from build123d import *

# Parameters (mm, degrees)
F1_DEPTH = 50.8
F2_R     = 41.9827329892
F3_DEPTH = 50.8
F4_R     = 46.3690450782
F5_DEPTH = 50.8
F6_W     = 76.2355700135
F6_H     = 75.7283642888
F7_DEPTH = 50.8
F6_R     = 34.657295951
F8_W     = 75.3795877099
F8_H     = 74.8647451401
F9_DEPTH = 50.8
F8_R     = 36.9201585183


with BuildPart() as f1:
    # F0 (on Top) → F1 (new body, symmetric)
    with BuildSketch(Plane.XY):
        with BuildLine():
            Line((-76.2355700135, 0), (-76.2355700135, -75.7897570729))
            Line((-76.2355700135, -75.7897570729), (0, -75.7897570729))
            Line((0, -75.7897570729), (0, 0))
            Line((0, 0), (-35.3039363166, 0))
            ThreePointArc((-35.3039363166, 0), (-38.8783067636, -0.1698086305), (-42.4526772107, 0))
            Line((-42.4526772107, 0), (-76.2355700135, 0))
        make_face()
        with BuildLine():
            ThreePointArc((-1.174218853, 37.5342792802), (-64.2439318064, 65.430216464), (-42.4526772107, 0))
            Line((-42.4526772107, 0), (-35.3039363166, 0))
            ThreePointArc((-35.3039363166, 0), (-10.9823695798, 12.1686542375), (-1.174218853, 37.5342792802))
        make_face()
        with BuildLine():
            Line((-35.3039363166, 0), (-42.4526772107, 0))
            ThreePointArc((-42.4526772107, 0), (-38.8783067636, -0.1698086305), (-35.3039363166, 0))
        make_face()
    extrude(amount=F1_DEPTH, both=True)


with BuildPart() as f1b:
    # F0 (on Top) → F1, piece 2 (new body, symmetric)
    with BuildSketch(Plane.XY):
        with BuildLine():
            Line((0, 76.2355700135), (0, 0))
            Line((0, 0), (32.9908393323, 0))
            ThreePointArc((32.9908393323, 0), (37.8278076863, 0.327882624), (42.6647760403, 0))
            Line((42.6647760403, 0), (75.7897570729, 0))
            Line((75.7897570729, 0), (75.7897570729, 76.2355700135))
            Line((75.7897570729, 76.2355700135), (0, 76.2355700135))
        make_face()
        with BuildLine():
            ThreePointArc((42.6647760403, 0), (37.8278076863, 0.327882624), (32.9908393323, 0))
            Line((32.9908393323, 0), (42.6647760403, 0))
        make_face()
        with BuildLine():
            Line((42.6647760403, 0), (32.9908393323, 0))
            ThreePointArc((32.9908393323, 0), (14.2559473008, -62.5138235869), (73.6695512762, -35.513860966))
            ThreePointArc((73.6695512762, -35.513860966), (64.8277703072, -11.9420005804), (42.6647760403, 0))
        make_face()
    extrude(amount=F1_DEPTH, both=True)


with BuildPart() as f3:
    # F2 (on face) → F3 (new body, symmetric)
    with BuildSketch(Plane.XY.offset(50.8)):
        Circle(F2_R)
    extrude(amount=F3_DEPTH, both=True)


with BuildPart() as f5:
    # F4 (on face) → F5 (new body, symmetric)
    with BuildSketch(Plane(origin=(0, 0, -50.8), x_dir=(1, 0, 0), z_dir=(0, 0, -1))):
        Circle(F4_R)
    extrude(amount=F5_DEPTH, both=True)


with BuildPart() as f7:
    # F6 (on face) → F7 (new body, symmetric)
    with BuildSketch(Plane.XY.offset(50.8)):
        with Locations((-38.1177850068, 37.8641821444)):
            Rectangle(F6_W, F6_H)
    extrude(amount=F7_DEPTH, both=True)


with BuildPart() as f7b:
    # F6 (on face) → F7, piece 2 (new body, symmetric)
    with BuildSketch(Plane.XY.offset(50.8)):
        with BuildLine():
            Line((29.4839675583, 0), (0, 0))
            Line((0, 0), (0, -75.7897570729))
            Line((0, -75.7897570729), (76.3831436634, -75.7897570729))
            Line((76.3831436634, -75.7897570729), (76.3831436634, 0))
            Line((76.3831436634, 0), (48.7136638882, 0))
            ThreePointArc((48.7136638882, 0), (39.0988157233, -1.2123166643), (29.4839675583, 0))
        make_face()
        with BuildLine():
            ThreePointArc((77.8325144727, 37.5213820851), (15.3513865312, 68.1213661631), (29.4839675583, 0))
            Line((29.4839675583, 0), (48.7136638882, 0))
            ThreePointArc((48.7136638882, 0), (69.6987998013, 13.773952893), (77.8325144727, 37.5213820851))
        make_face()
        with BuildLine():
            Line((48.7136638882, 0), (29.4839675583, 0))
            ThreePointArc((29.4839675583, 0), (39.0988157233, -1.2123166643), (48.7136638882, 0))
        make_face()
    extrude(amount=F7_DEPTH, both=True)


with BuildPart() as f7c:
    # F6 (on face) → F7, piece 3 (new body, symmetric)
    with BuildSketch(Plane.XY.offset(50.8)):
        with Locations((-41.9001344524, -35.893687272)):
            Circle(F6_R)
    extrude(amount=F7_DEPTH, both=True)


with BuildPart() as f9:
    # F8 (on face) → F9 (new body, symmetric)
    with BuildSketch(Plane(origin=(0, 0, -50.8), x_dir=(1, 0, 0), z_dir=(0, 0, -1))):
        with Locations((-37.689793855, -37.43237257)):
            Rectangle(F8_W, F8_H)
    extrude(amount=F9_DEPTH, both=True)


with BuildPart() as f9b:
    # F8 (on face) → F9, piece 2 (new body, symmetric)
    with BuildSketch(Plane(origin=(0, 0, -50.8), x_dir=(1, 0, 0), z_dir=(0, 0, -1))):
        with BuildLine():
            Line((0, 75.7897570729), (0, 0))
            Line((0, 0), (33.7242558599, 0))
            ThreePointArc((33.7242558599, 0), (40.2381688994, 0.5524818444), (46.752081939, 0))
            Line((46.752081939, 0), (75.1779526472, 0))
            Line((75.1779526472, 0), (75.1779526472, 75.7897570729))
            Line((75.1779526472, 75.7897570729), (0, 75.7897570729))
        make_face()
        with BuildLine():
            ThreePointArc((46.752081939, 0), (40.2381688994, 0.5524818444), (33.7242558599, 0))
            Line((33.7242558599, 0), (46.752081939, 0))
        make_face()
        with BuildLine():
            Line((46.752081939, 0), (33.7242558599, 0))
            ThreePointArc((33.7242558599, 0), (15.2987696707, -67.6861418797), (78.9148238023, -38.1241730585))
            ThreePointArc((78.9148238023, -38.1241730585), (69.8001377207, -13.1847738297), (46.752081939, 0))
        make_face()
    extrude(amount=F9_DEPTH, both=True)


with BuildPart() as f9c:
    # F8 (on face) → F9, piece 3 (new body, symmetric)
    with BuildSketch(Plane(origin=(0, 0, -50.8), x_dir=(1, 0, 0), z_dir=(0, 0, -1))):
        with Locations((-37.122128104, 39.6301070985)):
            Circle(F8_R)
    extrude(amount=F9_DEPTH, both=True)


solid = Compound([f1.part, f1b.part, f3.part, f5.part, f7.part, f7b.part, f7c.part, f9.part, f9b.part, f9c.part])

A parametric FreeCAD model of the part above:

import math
import FreeCAD as App
import Part
import Sketcher

V = App.Vector
Q = App.Units.Quantity

doc = App.newDocument("Part")
params = doc.addObject("Spreadsheet::Sheet", "Params")
for row, (alias, value) in enumerate([
    ("pad1_length", "4 in"),
    ("pad2_length", "4 in"),
    ("pad3_length", "4 in"),
    ("pad4_length", "4 in"),
    ("pad5_length", "4 in"),
    ("pad6_length", "4 in"),
    ("pad7_length", "4 in"),
    ("pad8_length", "4 in"),
    ("pad9_length", "4 in"),
    ("pad10_length", "4 in"),
], start=1):
    params.set(f"A{row}", alias)
    params.set(f"B{row}", "=" + value)
    params.setAlias(f"B{row}", alias)

body = doc.addObject("PartDesign::Body", "Body")

sketch1 = body.newObject("Sketcher::SketchObject", "Sketch")
sketch1.AttachmentSupport = (doc.getObject("XY_Plane"), [""])
sketch1.MapMode = "FlatFace"
sketch1.addGeometry(Part.LineSegment(V(-76, 0, 0), V(-76, -76, 0)), False)
sketch1.addGeometry(Part.LineSegment(V(-76, -76, 0), V(0, -76, 0)), False)
sketch1.addGeometry(Part.LineSegment(V(0, -76, 0), V(0, 0, 0)), False)
sketch1.addGeometry(Part.LineSegment(V(0, 0, 0), V(-35, 0, 0)), False)
sketch1.addGeometry(Part.ArcOfCircle(Part.Circle(V(-39, 38, 0), V(0, 0, 1), 38), math.radians(-85), math.radians(0)), False)
sketch1.addGeometry(Part.ArcOfCircle(Part.Circle(V(-39, 38, 0), V(0, 0, 1), 38), math.radians(0), math.radians(265)), False)
sketch1.addGeometry(Part.LineSegment(V(-42, 0, 0), V(-76, 0, 0)), False)
sketch1.addConstraint(Sketcher.Constraint("Coincident", 0, 2, 1, 1))
sketch1.addConstraint(Sketcher.Constraint("Coincident", 1, 2, 2, 1))
sketch1.addConstraint(Sketcher.Constraint("Coincident", 2, 2, 3, 1))
sketch1.addConstraint(Sketcher.Constraint("Coincident", 3, 2, 4, 1))
sketch1.addConstraint(Sketcher.Constraint("Tangent", 4, 2, 5, 1))
sketch1.addConstraint(Sketcher.Constraint("Coincident", 5, 2, 6, 1))
sketch1.addConstraint(Sketcher.Constraint("Coincident", 6, 2, 0, 1))
sketch1.addConstraint(Sketcher.Constraint("Vertical", 0))
sketch1.addConstraint(Sketcher.Constraint("Horizontal", 1))
sketch1.addConstraint(Sketcher.Constraint("Vertical", 2))
sketch1.addConstraint(Sketcher.Constraint("Horizontal", 3))
sketch1.addConstraint(Sketcher.Constraint("Horizontal", 6))
sketch1.addConstraint(Sketcher.Constraint("Coincident", 2, 2, -1, 1))
sketch1.addConstraint(Sketcher.Constraint("Equal", 4, 5))
sketch1.addConstraint(Sketcher.Constraint("PointOnObject", 5, 2, -1))
sketch1.addConstraint(Sketcher.Constraint("Horizontal", 5, 3, 4, 2))
sketch1.addConstraint(Sketcher.Constraint("Radius", 4, Q("37.704088 mm")))
sketch1.addConstraint(Sketcher.Constraint("DistanceX", 1, 1, 1, 2, Q("76.23557 mm")))
sketch1.addConstraint(Sketcher.Constraint("DistanceX", 3, 2, 3, 1, Q("35.303936 mm")))
sketch1.addConstraint(Sketcher.Constraint("DistanceX", 6, 2, 6, 1, Q("33.782893 mm")))
sketch1.addConstraint(Sketcher.Constraint("DistanceY", 0, 2, 0, 1, Q("75.789757 mm")))
pad1 = body.newObject("PartDesign::Pad", "Pad")
pad1.Profile = sketch1
pad1.setExpression("Length", "Params.pad1_length")
pad1.Midplane = True
body2 = doc.addObject("PartDesign::Body", "Body001")

sketch2 = body2.newObject("Sketcher::SketchObject", "Sketch001")
sketch2.AttachmentSupport = (doc.getObject("XY_Plane001"), [""])
sketch2.MapMode = "FlatFace"
sketch2.addGeometry(Part.LineSegment(V(0, 76, 0), V(0, 0, 0)), False)
sketch2.addGeometry(Part.LineSegment(V(0, 0, 0), V(33, 0, 0)), False)
sketch2.addGeometry(Part.ArcOfCircle(Part.Circle(V(38, -36, 0), V(0, 0, 1), 36), math.radians(98), math.radians(442)), False)
sketch2.addGeometry(Part.LineSegment(V(43, 0, 0), V(76, 0, 0)), False)
sketch2.addGeometry(Part.LineSegment(V(76, 0, 0), V(76, 76, 0)), False)
sketch2.addGeometry(Part.LineSegment(V(76, 76, 0), V(0, 76, 0)), False)
sketch2.addConstraint(Sketcher.Constraint("Coincident", 0, 2, 1, 1))
sketch2.addConstraint(Sketcher.Constraint("Coincident", 1, 2, 2, 1))
sketch2.addConstraint(Sketcher.Constraint("Coincident", 2, 2, 3, 1))
sketch2.addConstraint(Sketcher.Constraint("Coincident", 3, 2, 4, 1))
sketch2.addConstraint(Sketcher.Constraint("Coincident", 4, 2, 5, 1))
sketch2.addConstraint(Sketcher.Constraint("Coincident", 5, 2, 0, 1))
sketch2.addConstraint(Sketcher.Constraint("Vertical", 0))
sketch2.addConstraint(Sketcher.Constraint("Horizontal", 1))
sketch2.addConstraint(Sketcher.Constraint("Horizontal", 3))
sketch2.addConstraint(Sketcher.Constraint("Vertical", 4))
sketch2.addConstraint(Sketcher.Constraint("Horizontal", 5))
sketch2.addConstraint(Sketcher.Constraint("Coincident", 0, 2, -1, 1))
sketch2.addConstraint(Sketcher.Constraint("PointOnObject", 2, 2, -1))
sketch2.addConstraint(Sketcher.Constraint("Radius", 2, Q("35.841744 mm")))
sketch2.addConstraint(Sketcher.Constraint("DistanceX", 1, 1, 1, 2, Q("32.990839 mm")))
sketch2.addConstraint(Sketcher.Constraint("DistanceX", 3, 1, 3, 2, Q("33.124981 mm")))
sketch2.addConstraint(Sketcher.Constraint("DistanceY", 0, 2, 0, 1, Q("76.23557 mm")))
sketch2.addConstraint(Sketcher.Constraint("DistanceX", 5, 2, 5, 1, Q("75.789757 mm")))
pad2 = body2.newObject("PartDesign::Pad", "Pad001")
pad2.Profile = sketch2
pad2.setExpression("Length", "Params.pad2_length")
pad2.Midplane = True
body3 = doc.addObject("PartDesign::Body", "Body002")

sketch3 = body3.newObject("Sketcher::SketchObject", "Sketch002")
sketch3.AttachmentSupport = (doc.getObject("XY_Plane002"), [""])
sketch3.MapMode = "FlatFace"
sketch3.AttachmentOffset = App.Placement(V(0, 0, 2 * 25.4), App.Rotation())
sketch3.addGeometry(Part.Circle(V(0, 0, 0), V(0, 0, 1), 42), False)
sketch3.addConstraint(Sketcher.Constraint("Coincident", 0, 3, -1, 1))
sketch3.addConstraint(Sketcher.Constraint("Diameter", 0, Q("83.965466 mm")))
pad3 = body3.newObject("PartDesign::Pad", "Pad002")
pad3.Profile = sketch3
pad3.setExpression("Length", "Params.pad3_length")
pad3.Midplane = True
body4 = doc.addObject("PartDesign::Body", "Body003")

sketch4 = body4.newObject("Sketcher::SketchObject", "Sketch003")
sketch4.AttachmentSupport = (doc.getObject("XY_Plane003"), [""])
sketch4.MapMode = "FlatFace"
sketch4.AttachmentOffset = App.Placement(V(0, 0, -2 * 25.4), App.Rotation())
sketch4.addGeometry(Part.Circle(V(0, 0, 0), V(0, 0, 1), 46), False)
sketch4.addConstraint(Sketcher.Constraint("Coincident", 0, 3, -1, 1))
sketch4.addConstraint(Sketcher.Constraint("Diameter", 0, Q("92.73809 mm")))
pad4 = body4.newObject("PartDesign::Pad", "Pad003")
pad4.Profile = sketch4
pad4.setExpression("Length", "Params.pad4_length")
pad4.Midplane = True
body5 = doc.addObject("PartDesign::Body", "Body004")

sketch5 = body5.newObject("Sketcher::SketchObject", "Sketch004")
sketch5.AttachmentSupport = (doc.getObject("XY_Plane004"), [""])
sketch5.MapMode = "FlatFace"
sketch5.AttachmentOffset = App.Placement(V(0, 0, 2 * 25.4), App.Rotation())
sketch5.addGeometry(Part.LineSegment(V(-76, 76, 0), V(-76, 0, 0)), False)
sketch5.addGeometry(Part.LineSegment(V(-76, 0, 0), V(0, 0, 0)), False)
sketch5.addGeometry(Part.LineSegment(V(0, 0, 0), V(0, 76, 0)), False)
sketch5.addGeometry(Part.LineSegment(V(0, 76, 0), V(-76, 76, 0)), False)
sketch5.addConstraint(Sketcher.Constraint("Coincident", 0, 2, 1, 1))
sketch5.addConstraint(Sketcher.Constraint("Coincident", 1, 2, 2, 1))
sketch5.addConstraint(Sketcher.Constraint("Coincident", 2, 2, 3, 1))
sketch5.addConstraint(Sketcher.Constraint("Coincident", 3, 2, 0, 1))
sketch5.addConstraint(Sketcher.Constraint("Vertical", 0))
sketch5.addConstraint(Sketcher.Constraint("Horizontal", 1))
sketch5.addConstraint(Sketcher.Constraint("Vertical", 2))
sketch5.addConstraint(Sketcher.Constraint("Horizontal", 3))
sketch5.addConstraint(Sketcher.Constraint("Coincident", 1, 2, -1, 1))
sketch5.addConstraint(Sketcher.Constraint("DistanceX", 1, 1, 1, 2, Q("76.23557 mm")))
sketch5.addConstraint(Sketcher.Constraint("DistanceY", 0, 2, 0, 1, Q("75.728364 mm")))
pad5 = body5.newObject("PartDesign::Pad", "Pad004")
pad5.Profile = sketch5
pad5.setExpression("Length", "Params.pad5_length")
pad5.Midplane = True
body6 = doc.addObject("PartDesign::Body", "Body005")

sketch6 = body6.newObject("Sketcher::SketchObject", "Sketch005")
sketch6.AttachmentSupport = (doc.getObject("XY_Plane005"), [""])
sketch6.MapMode = "FlatFace"
sketch6.AttachmentOffset = App.Placement(V(0, 0, 2 * 25.4), App.Rotation())
sketch6.addGeometry(Part.LineSegment(V(29, 0, 0), V(0, 0, 0)), False)
sketch6.addGeometry(Part.LineSegment(V(0, 0, 0), V(0, -76, 0)), False)
sketch6.addGeometry(Part.LineSegment(V(0, -76, 0), V(76, -76, 0)), False)
sketch6.addGeometry(Part.LineSegment(V(76, -76, 0), V(76, 0, 0)), False)
sketch6.addGeometry(Part.LineSegment(V(76, 0, 0), V(49, 0, 0)), False)
sketch6.addGeometry(Part.ArcOfCircle(Part.Circle(V(39, 38, 0), V(0, 0, 1), 39), math.radians(-76), math.radians(0)), False)
sketch6.addGeometry(Part.ArcOfCircle(Part.Circle(V(39, 38, 0), V(0, 0, 1), 39), math.radians(0), math.radians(256)), False)
sketch6.addConstraint(Sketcher.Constraint("Coincident", 0, 2, 1, 1))
sketch6.addConstraint(Sketcher.Constraint("Coincident", 1, 2, 2, 1))
sketch6.addConstraint(Sketcher.Constraint("Coincident", 2, 2, 3, 1))
sketch6.addConstraint(Sketcher.Constraint("Coincident", 3, 2, 4, 1))
sketch6.addConstraint(Sketcher.Constraint("Coincident", 4, 2, 5, 1))
sketch6.addConstraint(Sketcher.Constraint("Tangent", 5, 2, 6, 1))
sketch6.addConstraint(Sketcher.Constraint("Coincident", 6, 2, 0, 1))
sketch6.addConstraint(Sketcher.Constraint("Horizontal", 0))
sketch6.addConstraint(Sketcher.Constraint("Vertical", 1))
sketch6.addConstraint(Sketcher.Constraint("Horizontal", 2))
sketch6.addConstraint(Sketcher.Constraint("Vertical", 3))
sketch6.addConstraint(Sketcher.Constraint("Horizontal", 4))
sketch6.addConstraint(Sketcher.Constraint("Coincident", 0, 2, -1, 1))
sketch6.addConstraint(Sketcher.Constraint("Equal", 5, 6))
sketch6.addConstraint(Sketcher.Constraint("PointOnObject", 3, 2, -1))
sketch6.addConstraint(Sketcher.Constraint("Horizontal", 6, 3, 5, 2))
sketch6.addConstraint(Sketcher.Constraint("Radius", 5, Q("38.733699 mm")))
sketch6.addConstraint(Sketcher.Constraint("DistanceX", 4, 2, 4, 1, Q("27.66948 mm")))
sketch6.addConstraint(Sketcher.Constraint("DistanceX", 0, 2, 0, 1, Q("29.483968 mm")))
sketch6.addConstraint(Sketcher.Constraint("DistanceX", 2, 1, 2, 2, Q("76.383144 mm")))
sketch6.addConstraint(Sketcher.Constraint("DistanceY", 1, 2, 1, 1, Q("75.789757 mm")))
pad6 = body6.newObject("PartDesign::Pad", "Pad005")
pad6.Profile = sketch6
pad6.setExpression("Length", "Params.pad6_length")
pad6.Midplane = True
body7 = doc.addObject("PartDesign::Body", "Body006")

sketch7 = body7.newObject("Sketcher::SketchObject", "Sketch006")
sketch7.AttachmentSupport = (doc.getObject("XY_Plane006"), [""])
sketch7.MapMode = "FlatFace"
sketch7.AttachmentOffset = App.Placement(V(0, 0, 2 * 25.4), App.Rotation())
sketch7.addGeometry(Part.Circle(V(-42, -36, 0), V(0, 0, 1), 35), False)
sketch7.addConstraint(Sketcher.Constraint("Diameter", 0, Q("69.314592 mm")))
sketch7.addConstraint(Sketcher.Constraint("DistanceX", 0, 3, -1, 1, Q("41.900134 mm")))
sketch7.addConstraint(Sketcher.Constraint("DistanceY", 0, 3, -1, 1, Q("35.893687 mm")))
pad7 = body7.newObject("PartDesign::Pad", "Pad006")
pad7.Profile = sketch7
pad7.setExpression("Length", "Params.pad7_length")
pad7.Midplane = True
body8 = doc.addObject("PartDesign::Body", "Body007")

sketch8 = body8.newObject("Sketcher::SketchObject", "Sketch007")
sketch8.AttachmentSupport = (doc.getObject("XY_Plane007"), [""])
sketch8.MapMode = "FlatFace"
sketch8.AttachmentOffset = App.Placement(V(0, 0, -2 * 25.4), App.Rotation())
sketch8.addGeometry(Part.LineSegment(V(-75, 0, 0), V(-75, 75, 0)), False)
sketch8.addGeometry(Part.LineSegment(V(-75, 75, 0), V(0, 75, 0)), False)
sketch8.addGeometry(Part.LineSegment(V(0, 75, 0), V(0, 0, 0)), False)
sketch8.addGeometry(Part.LineSegment(V(0, 0, 0), V(-75, 0, 0)), False)
sketch8.addConstraint(Sketcher.Constraint("Coincident", 0, 2, 1, 1))
sketch8.addConstraint(Sketcher.Constraint("Coincident", 1, 2, 2, 1))
sketch8.addConstraint(Sketcher.Constraint("Coincident", 2, 2, 3, 1))
sketch8.addConstraint(Sketcher.Constraint("Coincident", 3, 2, 0, 1))
sketch8.addConstraint(Sketcher.Constraint("Vertical", 0))
sketch8.addConstraint(Sketcher.Constraint("Horizontal", 1))
sketch8.addConstraint(Sketcher.Constraint("Vertical", 2))
sketch8.addConstraint(Sketcher.Constraint("Horizontal", 3))
sketch8.addConstraint(Sketcher.Constraint("Coincident", 2, 2, -1, 1))
sketch8.addConstraint(Sketcher.Constraint("DistanceX", 1, 1, 1, 2, Q("75.379588 mm")))
sketch8.addConstraint(Sketcher.Constraint("DistanceY", 0, 1, 0, 2, Q("74.864745 mm")))
pad8 = body8.newObject("PartDesign::Pad", "Pad007")
pad8.Profile = sketch8
pad8.setExpression("Length", "Params.pad8_length")
pad8.Midplane = True
body9 = doc.addObject("PartDesign::Body", "Body008")

sketch9 = body9.newObject("Sketcher::SketchObject", "Sketch008")
sketch9.AttachmentSupport = (doc.getObject("XY_Plane008"), [""])
sketch9.MapMode = "FlatFace"
sketch9.AttachmentOffset = App.Placement(V(0, 0, -2 * 25.4), App.Rotation())
sketch9.addGeometry(Part.LineSegment(V(0, -76, 0), V(0, 0, 0)), False)
sketch9.addGeometry(Part.LineSegment(V(0, 0, 0), V(34, 0, 0)), False)
sketch9.addGeometry(Part.ArcOfCircle(Part.Circle(V(40, 38, 0), V(0, 0, 1), 39), math.radians(0), math.radians(260)), False)
sketch9.addGeometry(Part.ArcOfCircle(Part.Circle(V(40, 38, 0), V(0, 0, 1), 39), math.radians(-80), math.radians(0)), False)
sketch9.addGeometry(Part.LineSegment(V(47, 0, 0), V(75, 0, 0)), False)
sketch9.addGeometry(Part.LineSegment(V(75, 0, 0), V(75, -76, 0)), False)
sketch9.addGeometry(Part.LineSegment(V(75, -76, 0), V(0, -76, 0)), False)
sketch9.addConstraint(Sketcher.Constraint("Coincident", 0, 2, 1, 1))
sketch9.addConstraint(Sketcher.Constraint("Coincident", 1, 2, 2, 2))
sketch9.addConstraint(Sketcher.Constraint("Tangent", 2, 1, 3, 2))
sketch9.addConstraint(Sketcher.Constraint("Coincident", 3, 1, 4, 1))
sketch9.addConstraint(Sketcher.Constraint("Coincident", 4, 2, 5, 1))
sketch9.addConstraint(Sketcher.Constraint("Coincident", 5, 2, 6, 1))
sketch9.addConstraint(Sketcher.Constraint("Coincident", 6, 2, 0, 1))
sketch9.addConstraint(Sketcher.Constraint("Vertical", 0))
sketch9.addConstraint(Sketcher.Constraint("Horizontal", 1))
sketch9.addConstraint(Sketcher.Constraint("Horizontal", 4))
sketch9.addConstraint(Sketcher.Constraint("Vertical", 5))
sketch9.addConstraint(Sketcher.Constraint("Horizontal", 6))
sketch9.addConstraint(Sketcher.Constraint("Coincident", 0, 2, -1, 1))
sketch9.addConstraint(Sketcher.Constraint("Equal", 2, 3))
sketch9.addConstraint(Sketcher.Constraint("PointOnObject", 3, 1, -1))
sketch9.addConstraint(Sketcher.Constraint("Horizontal", 3, 3, 2, 1))
sketch9.addConstraint(Sketcher.Constraint("Radius", 2, Q("38.676655 mm")))
sketch9.addConstraint(Sketcher.Constraint("DistanceX", 4, 1, 4, 2, Q("28.425871 mm")))
sketch9.addConstraint(Sketcher.Constraint("DistanceX", 1, 1, 1, 2, Q("33.724256 mm")))
sketch9.addConstraint(Sketcher.Constraint("DistanceX", 6, 2, 6, 1, Q("75.177953 mm")))
sketch9.addConstraint(Sketcher.Constraint("DistanceY", 0, 1, 0, 2, Q("75.789757 mm")))
pad9 = body9.newObject("PartDesign::Pad", "Pad008")
pad9.Profile = sketch9
pad9.setExpression("Length", "Params.pad9_length")
pad9.Midplane = True
body10 = doc.addObject("PartDesign::Body", "Body009")

sketch10 = body10.newObject("Sketcher::SketchObject", "Sketch009")
sketch10.AttachmentSupport = (doc.getObject("XY_Plane009"), [""])
sketch10.MapMode = "FlatFace"
sketch10.AttachmentOffset = App.Placement(V(0, 0, -2 * 25.4), App.Rotation())
sketch10.addGeometry(Part.Circle(V(-37, -40, 0), V(0, 0, 1), 37), False)
sketch10.addConstraint(Sketcher.Constraint("Diameter", 0, Q("73.840317 mm")))
sketch10.addConstraint(Sketcher.Constraint("DistanceX", 0, 3, -1, 1, Q("37.122128 mm")))
sketch10.addConstraint(Sketcher.Constraint("DistanceY", 0, 3, -1, 1, Q("39.630107 mm")))
pad10 = body10.newObject("PartDesign::Pad", "Pad009")
pad10.Profile = sketch10
pad10.setExpression("Length", "Params.pad10_length")
pad10.Midplane = True

doc.recompute()
